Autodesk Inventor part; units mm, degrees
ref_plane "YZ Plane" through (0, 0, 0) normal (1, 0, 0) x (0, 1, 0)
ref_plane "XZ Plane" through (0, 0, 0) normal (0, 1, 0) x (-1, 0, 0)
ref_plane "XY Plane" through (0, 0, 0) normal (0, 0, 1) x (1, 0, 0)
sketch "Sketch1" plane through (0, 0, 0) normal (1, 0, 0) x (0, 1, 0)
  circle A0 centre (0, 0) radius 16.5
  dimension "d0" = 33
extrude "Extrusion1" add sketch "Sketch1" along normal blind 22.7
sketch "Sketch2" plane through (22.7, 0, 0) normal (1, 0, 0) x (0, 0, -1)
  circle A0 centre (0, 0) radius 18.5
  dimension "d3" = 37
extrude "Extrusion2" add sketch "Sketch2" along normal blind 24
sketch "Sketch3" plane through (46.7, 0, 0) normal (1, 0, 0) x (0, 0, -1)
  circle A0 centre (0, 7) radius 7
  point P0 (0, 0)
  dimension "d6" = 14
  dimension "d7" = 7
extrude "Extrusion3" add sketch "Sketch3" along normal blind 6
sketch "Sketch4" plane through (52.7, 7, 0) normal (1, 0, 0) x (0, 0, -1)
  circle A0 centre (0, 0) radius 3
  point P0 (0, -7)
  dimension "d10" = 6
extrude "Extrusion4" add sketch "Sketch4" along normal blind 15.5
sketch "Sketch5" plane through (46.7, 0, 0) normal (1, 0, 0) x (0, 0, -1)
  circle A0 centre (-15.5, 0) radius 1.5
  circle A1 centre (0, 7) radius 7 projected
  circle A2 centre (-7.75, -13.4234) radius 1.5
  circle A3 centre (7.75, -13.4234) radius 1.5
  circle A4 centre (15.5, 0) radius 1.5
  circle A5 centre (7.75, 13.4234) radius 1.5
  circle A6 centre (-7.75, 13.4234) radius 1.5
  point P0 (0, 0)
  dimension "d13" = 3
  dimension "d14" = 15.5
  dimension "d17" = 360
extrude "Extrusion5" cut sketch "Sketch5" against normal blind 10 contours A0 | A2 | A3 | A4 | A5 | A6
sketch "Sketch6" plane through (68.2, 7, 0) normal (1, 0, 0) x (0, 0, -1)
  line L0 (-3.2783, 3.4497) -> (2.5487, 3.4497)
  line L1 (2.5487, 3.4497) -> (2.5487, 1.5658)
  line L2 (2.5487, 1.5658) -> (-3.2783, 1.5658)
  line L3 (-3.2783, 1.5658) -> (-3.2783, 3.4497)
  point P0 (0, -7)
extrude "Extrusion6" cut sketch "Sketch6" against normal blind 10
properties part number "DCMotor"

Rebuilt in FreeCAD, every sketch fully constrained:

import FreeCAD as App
import Part
import Sketcher

V = App.Vector
Q = App.Units.Quantity

doc = App.newDocument("Part")
body = doc.addObject("PartDesign::Body", "Body")

sketch1 = doc.addObject("Sketcher::SketchObject", "Sketch")
body.addObject(sketch1)
sketch1.AttachmentSupport = (doc.YZ_Plane, [""])
sketch1.MapMode = "FlatFace"
sketch1.addGeometry(Part.Circle(V(0, 0, 0), V(0, 0, 1), 16), False)
sketch1.addConstraint([
    Sketcher.Constraint("Coincident", 0, 3, -1, 1),
    Sketcher.Constraint("Diameter", 0, Q("33 mm")),
])
pad1 = doc.addObject("PartDesign::Pad", "Pad")
body.addObject(pad1)
pad1.Profile = sketch1
pad1.Length = 22.7

sketch2 = doc.addObject("Sketcher::SketchObject", "Sketch001")
body.addObject(sketch2)
sketch2.AttachmentSupport = (doc.YZ_Plane, [""])
sketch2.MapMode = "FlatFace"
sketch2.AttachmentOffset = App.Placement(V(0, 0, 22.7), App.Rotation())
sketch2.addGeometry(Part.Circle(V(0, 0, 0), V(0, 0, 1), 18), False)
sketch2.addConstraint([
    Sketcher.Constraint("Coincident", 0, 3, -1, 1),
    Sketcher.Constraint("Diameter", 0, Q("37 mm")),
])
pad2 = doc.addObject("PartDesign::Pad", "Pad001")
body.addObject(pad2)
pad2.Profile = sketch2
pad2.Length = 24

sketch3 = doc.addObject("Sketcher::SketchObject", "Sketch002")
body.addObject(sketch3)
sketch3.AttachmentSupport = (doc.YZ_Plane, [""])
sketch3.MapMode = "FlatFace"
sketch3.AttachmentOffset = App.Placement(V(0, 0, 46.7), App.Rotation())
sketch3.addGeometry(Part.Circle(V(7, 0, 0), V(0, 0, 1), 7), False)
sketch3.addConstraint([
    Sketcher.Constraint("PointOnObject", 0, 3, -1),
    Sketcher.Constraint("Diameter", 0, Q("14 mm")),
    Sketcher.Constraint("DistanceX", -1, 1, 0, 3, Q("7 mm")),
])
pad3 = doc.addObject("PartDesign::Pad", "Pad002")
body.addObject(pad3)
pad3.Profile = sketch3
pad3.Length = 6

sketch4 = doc.addObject("Sketcher::SketchObject", "Sketch003")
body.addObject(sketch4)
sketch4.AttachmentSupport = (doc.YZ_Plane, [""])
sketch4.MapMode = "FlatFace"
sketch4.AttachmentOffset = App.Placement(V(0, 0, 52.7), App.Rotation())
sketch4.addGeometry(Part.Circle(V(7, 0, 0), V(0, 0, 1), 3), False)
sketch4.addConstraint([
    Sketcher.Constraint("PointOnObject", 0, 3, -1),
    Sketcher.Constraint("Diameter", 0, Q("6 mm")),
    Sketcher.Constraint("DistanceX", -1, 1, 0, 3, Q("7 mm")),
])
pad4 = doc.addObject("PartDesign::Pad", "Pad003")
body.addObject(pad4)
pad4.Profile = sketch4
pad4.Length = 15.5

sketch5 = doc.addObject("Sketcher::SketchObject", "Sketch004")
body.addObject(sketch5)
sketch5.AttachmentSupport = (doc.YZ_Plane, [""])
sketch5.MapMode = "FlatFace"
sketch5.AttachmentOffset = App.Placement(V(0, 0, 46.7), App.Rotation())
sketch5.addGeometry([
    Part.Circle(V(0, 15.5, 0), V(0, 0, 1), 1.5),
    Part.Circle(V(-13.4, 7.8, 0), V(0, 0, 1), 1.5),
    Part.Circle(V(-13.4, -7.8, 0), V(0, 0, 1), 1.5),
    Part.Circle(V(0, -15.5, 0), V(0, 0, 1), 1.5),
    Part.Circle(V(13.4, -7.8, 0), V(0, 0, 1), 1.5),
    Part.Circle(V(13.4, 7.8, 0), V(0, 0, 1), 1.5),
], False)
sketch5.addConstraint([
    Sketcher.Constraint("Equal", 0, 1),
    Sketcher.Constraint("Equal", 1, 2),
    Sketcher.Constraint("Equal", 2, 3),
    Sketcher.Constraint("Equal", 3, 4),
    Sketcher.Constraint("Equal", 4, 5),
    Sketcher.Constraint("Symmetric", 0, 3, 3, 3, -1, 1),
    Sketcher.Constraint("Symmetric", 1, 3, 4, 3, -1, 1),
    Sketcher.Constraint("Symmetric", 2, 3, 5, 3, -1, 1),
    Sketcher.Constraint("Symmetric", 2, 3, 4, 3, -2),
    Sketcher.Constraint("PointOnObject", 0, 3, -2),
    Sketcher.Constraint("Diameter", 0, Q("3 mm")),
    Sketcher.Constraint("DistanceY", -1, 1, 0, 3, Q("15.5 mm")),
    Sketcher.Constraint("DistanceY", 2, 3, 1, 3, Q("15.5 mm")),
    Sketcher.Constraint("DistanceX", 1, 3, -1, 1, Q("13.4234 mm")),
])
pocket1 = doc.addObject("PartDesign::Pocket", "Pocket")
body.addObject(pocket1)
pocket1.Profile = sketch5
pocket1.Length = 10

sketch6 = doc.addObject("Sketcher::SketchObject", "Sketch005")
body.addObject(sketch6)
sketch6.AttachmentSupport = (doc.YZ_Plane, [""])
sketch6.MapMode = "FlatFace"
sketch6.AttachmentOffset = App.Placement(V(0, 0, 68.2), App.Rotation())
sketch6.addGeometry([
    Part.LineSegment(V(10.4, -2.5, 0), V(10.4, 3.3, 0)),
    Part.LineSegment(V(10.4, 3.3, 0), V(8.6, 3.3, 0)),
    Part.LineSegment(V(8.6, 3.3, 0), V(8.6, -2.5, 0)),
    Part.LineSegment(V(8.6, -2.5, 0), V(10.4, -2.5, 0)),
], False)
sketch6.addConstraint([
    Sketcher.Constraint("Coincident", 0, 2, 1, 1),
    Sketcher.Constraint("Coincident", 1, 2, 2, 1),
    Sketcher.Constraint("Coincident", 2, 2, 3, 1),
    Sketcher.Constraint("Coincident", 3, 2, 0, 1),
    Sketcher.Constraint("Vertical", 0),
    Sketcher.Constraint("Horizontal", 1),
    Sketcher.Constraint("Vertical", 2),
    Sketcher.Constraint("Horizontal", 3),
    Sketcher.Constraint("DistanceX", 1, 2, 1, 1, Q("1.884 mm")),
    Sketcher.Constraint("DistanceY", 0, 1, 0, 2, Q("5.827 mm")),
    Sketcher.Constraint("DistanceX", -1, 1, 0, 2, Q("10.4497 mm")),
    Sketcher.Constraint("DistanceY", -1, 1, 0, 2, Q("3.2783 mm")),
])
pocket2 = doc.addObject("PartDesign::Pocket", "Pocket001")
body.addObject(pocket2)
pocket2.Profile = sketch6
pocket2.Length = 10

doc.recompute()
